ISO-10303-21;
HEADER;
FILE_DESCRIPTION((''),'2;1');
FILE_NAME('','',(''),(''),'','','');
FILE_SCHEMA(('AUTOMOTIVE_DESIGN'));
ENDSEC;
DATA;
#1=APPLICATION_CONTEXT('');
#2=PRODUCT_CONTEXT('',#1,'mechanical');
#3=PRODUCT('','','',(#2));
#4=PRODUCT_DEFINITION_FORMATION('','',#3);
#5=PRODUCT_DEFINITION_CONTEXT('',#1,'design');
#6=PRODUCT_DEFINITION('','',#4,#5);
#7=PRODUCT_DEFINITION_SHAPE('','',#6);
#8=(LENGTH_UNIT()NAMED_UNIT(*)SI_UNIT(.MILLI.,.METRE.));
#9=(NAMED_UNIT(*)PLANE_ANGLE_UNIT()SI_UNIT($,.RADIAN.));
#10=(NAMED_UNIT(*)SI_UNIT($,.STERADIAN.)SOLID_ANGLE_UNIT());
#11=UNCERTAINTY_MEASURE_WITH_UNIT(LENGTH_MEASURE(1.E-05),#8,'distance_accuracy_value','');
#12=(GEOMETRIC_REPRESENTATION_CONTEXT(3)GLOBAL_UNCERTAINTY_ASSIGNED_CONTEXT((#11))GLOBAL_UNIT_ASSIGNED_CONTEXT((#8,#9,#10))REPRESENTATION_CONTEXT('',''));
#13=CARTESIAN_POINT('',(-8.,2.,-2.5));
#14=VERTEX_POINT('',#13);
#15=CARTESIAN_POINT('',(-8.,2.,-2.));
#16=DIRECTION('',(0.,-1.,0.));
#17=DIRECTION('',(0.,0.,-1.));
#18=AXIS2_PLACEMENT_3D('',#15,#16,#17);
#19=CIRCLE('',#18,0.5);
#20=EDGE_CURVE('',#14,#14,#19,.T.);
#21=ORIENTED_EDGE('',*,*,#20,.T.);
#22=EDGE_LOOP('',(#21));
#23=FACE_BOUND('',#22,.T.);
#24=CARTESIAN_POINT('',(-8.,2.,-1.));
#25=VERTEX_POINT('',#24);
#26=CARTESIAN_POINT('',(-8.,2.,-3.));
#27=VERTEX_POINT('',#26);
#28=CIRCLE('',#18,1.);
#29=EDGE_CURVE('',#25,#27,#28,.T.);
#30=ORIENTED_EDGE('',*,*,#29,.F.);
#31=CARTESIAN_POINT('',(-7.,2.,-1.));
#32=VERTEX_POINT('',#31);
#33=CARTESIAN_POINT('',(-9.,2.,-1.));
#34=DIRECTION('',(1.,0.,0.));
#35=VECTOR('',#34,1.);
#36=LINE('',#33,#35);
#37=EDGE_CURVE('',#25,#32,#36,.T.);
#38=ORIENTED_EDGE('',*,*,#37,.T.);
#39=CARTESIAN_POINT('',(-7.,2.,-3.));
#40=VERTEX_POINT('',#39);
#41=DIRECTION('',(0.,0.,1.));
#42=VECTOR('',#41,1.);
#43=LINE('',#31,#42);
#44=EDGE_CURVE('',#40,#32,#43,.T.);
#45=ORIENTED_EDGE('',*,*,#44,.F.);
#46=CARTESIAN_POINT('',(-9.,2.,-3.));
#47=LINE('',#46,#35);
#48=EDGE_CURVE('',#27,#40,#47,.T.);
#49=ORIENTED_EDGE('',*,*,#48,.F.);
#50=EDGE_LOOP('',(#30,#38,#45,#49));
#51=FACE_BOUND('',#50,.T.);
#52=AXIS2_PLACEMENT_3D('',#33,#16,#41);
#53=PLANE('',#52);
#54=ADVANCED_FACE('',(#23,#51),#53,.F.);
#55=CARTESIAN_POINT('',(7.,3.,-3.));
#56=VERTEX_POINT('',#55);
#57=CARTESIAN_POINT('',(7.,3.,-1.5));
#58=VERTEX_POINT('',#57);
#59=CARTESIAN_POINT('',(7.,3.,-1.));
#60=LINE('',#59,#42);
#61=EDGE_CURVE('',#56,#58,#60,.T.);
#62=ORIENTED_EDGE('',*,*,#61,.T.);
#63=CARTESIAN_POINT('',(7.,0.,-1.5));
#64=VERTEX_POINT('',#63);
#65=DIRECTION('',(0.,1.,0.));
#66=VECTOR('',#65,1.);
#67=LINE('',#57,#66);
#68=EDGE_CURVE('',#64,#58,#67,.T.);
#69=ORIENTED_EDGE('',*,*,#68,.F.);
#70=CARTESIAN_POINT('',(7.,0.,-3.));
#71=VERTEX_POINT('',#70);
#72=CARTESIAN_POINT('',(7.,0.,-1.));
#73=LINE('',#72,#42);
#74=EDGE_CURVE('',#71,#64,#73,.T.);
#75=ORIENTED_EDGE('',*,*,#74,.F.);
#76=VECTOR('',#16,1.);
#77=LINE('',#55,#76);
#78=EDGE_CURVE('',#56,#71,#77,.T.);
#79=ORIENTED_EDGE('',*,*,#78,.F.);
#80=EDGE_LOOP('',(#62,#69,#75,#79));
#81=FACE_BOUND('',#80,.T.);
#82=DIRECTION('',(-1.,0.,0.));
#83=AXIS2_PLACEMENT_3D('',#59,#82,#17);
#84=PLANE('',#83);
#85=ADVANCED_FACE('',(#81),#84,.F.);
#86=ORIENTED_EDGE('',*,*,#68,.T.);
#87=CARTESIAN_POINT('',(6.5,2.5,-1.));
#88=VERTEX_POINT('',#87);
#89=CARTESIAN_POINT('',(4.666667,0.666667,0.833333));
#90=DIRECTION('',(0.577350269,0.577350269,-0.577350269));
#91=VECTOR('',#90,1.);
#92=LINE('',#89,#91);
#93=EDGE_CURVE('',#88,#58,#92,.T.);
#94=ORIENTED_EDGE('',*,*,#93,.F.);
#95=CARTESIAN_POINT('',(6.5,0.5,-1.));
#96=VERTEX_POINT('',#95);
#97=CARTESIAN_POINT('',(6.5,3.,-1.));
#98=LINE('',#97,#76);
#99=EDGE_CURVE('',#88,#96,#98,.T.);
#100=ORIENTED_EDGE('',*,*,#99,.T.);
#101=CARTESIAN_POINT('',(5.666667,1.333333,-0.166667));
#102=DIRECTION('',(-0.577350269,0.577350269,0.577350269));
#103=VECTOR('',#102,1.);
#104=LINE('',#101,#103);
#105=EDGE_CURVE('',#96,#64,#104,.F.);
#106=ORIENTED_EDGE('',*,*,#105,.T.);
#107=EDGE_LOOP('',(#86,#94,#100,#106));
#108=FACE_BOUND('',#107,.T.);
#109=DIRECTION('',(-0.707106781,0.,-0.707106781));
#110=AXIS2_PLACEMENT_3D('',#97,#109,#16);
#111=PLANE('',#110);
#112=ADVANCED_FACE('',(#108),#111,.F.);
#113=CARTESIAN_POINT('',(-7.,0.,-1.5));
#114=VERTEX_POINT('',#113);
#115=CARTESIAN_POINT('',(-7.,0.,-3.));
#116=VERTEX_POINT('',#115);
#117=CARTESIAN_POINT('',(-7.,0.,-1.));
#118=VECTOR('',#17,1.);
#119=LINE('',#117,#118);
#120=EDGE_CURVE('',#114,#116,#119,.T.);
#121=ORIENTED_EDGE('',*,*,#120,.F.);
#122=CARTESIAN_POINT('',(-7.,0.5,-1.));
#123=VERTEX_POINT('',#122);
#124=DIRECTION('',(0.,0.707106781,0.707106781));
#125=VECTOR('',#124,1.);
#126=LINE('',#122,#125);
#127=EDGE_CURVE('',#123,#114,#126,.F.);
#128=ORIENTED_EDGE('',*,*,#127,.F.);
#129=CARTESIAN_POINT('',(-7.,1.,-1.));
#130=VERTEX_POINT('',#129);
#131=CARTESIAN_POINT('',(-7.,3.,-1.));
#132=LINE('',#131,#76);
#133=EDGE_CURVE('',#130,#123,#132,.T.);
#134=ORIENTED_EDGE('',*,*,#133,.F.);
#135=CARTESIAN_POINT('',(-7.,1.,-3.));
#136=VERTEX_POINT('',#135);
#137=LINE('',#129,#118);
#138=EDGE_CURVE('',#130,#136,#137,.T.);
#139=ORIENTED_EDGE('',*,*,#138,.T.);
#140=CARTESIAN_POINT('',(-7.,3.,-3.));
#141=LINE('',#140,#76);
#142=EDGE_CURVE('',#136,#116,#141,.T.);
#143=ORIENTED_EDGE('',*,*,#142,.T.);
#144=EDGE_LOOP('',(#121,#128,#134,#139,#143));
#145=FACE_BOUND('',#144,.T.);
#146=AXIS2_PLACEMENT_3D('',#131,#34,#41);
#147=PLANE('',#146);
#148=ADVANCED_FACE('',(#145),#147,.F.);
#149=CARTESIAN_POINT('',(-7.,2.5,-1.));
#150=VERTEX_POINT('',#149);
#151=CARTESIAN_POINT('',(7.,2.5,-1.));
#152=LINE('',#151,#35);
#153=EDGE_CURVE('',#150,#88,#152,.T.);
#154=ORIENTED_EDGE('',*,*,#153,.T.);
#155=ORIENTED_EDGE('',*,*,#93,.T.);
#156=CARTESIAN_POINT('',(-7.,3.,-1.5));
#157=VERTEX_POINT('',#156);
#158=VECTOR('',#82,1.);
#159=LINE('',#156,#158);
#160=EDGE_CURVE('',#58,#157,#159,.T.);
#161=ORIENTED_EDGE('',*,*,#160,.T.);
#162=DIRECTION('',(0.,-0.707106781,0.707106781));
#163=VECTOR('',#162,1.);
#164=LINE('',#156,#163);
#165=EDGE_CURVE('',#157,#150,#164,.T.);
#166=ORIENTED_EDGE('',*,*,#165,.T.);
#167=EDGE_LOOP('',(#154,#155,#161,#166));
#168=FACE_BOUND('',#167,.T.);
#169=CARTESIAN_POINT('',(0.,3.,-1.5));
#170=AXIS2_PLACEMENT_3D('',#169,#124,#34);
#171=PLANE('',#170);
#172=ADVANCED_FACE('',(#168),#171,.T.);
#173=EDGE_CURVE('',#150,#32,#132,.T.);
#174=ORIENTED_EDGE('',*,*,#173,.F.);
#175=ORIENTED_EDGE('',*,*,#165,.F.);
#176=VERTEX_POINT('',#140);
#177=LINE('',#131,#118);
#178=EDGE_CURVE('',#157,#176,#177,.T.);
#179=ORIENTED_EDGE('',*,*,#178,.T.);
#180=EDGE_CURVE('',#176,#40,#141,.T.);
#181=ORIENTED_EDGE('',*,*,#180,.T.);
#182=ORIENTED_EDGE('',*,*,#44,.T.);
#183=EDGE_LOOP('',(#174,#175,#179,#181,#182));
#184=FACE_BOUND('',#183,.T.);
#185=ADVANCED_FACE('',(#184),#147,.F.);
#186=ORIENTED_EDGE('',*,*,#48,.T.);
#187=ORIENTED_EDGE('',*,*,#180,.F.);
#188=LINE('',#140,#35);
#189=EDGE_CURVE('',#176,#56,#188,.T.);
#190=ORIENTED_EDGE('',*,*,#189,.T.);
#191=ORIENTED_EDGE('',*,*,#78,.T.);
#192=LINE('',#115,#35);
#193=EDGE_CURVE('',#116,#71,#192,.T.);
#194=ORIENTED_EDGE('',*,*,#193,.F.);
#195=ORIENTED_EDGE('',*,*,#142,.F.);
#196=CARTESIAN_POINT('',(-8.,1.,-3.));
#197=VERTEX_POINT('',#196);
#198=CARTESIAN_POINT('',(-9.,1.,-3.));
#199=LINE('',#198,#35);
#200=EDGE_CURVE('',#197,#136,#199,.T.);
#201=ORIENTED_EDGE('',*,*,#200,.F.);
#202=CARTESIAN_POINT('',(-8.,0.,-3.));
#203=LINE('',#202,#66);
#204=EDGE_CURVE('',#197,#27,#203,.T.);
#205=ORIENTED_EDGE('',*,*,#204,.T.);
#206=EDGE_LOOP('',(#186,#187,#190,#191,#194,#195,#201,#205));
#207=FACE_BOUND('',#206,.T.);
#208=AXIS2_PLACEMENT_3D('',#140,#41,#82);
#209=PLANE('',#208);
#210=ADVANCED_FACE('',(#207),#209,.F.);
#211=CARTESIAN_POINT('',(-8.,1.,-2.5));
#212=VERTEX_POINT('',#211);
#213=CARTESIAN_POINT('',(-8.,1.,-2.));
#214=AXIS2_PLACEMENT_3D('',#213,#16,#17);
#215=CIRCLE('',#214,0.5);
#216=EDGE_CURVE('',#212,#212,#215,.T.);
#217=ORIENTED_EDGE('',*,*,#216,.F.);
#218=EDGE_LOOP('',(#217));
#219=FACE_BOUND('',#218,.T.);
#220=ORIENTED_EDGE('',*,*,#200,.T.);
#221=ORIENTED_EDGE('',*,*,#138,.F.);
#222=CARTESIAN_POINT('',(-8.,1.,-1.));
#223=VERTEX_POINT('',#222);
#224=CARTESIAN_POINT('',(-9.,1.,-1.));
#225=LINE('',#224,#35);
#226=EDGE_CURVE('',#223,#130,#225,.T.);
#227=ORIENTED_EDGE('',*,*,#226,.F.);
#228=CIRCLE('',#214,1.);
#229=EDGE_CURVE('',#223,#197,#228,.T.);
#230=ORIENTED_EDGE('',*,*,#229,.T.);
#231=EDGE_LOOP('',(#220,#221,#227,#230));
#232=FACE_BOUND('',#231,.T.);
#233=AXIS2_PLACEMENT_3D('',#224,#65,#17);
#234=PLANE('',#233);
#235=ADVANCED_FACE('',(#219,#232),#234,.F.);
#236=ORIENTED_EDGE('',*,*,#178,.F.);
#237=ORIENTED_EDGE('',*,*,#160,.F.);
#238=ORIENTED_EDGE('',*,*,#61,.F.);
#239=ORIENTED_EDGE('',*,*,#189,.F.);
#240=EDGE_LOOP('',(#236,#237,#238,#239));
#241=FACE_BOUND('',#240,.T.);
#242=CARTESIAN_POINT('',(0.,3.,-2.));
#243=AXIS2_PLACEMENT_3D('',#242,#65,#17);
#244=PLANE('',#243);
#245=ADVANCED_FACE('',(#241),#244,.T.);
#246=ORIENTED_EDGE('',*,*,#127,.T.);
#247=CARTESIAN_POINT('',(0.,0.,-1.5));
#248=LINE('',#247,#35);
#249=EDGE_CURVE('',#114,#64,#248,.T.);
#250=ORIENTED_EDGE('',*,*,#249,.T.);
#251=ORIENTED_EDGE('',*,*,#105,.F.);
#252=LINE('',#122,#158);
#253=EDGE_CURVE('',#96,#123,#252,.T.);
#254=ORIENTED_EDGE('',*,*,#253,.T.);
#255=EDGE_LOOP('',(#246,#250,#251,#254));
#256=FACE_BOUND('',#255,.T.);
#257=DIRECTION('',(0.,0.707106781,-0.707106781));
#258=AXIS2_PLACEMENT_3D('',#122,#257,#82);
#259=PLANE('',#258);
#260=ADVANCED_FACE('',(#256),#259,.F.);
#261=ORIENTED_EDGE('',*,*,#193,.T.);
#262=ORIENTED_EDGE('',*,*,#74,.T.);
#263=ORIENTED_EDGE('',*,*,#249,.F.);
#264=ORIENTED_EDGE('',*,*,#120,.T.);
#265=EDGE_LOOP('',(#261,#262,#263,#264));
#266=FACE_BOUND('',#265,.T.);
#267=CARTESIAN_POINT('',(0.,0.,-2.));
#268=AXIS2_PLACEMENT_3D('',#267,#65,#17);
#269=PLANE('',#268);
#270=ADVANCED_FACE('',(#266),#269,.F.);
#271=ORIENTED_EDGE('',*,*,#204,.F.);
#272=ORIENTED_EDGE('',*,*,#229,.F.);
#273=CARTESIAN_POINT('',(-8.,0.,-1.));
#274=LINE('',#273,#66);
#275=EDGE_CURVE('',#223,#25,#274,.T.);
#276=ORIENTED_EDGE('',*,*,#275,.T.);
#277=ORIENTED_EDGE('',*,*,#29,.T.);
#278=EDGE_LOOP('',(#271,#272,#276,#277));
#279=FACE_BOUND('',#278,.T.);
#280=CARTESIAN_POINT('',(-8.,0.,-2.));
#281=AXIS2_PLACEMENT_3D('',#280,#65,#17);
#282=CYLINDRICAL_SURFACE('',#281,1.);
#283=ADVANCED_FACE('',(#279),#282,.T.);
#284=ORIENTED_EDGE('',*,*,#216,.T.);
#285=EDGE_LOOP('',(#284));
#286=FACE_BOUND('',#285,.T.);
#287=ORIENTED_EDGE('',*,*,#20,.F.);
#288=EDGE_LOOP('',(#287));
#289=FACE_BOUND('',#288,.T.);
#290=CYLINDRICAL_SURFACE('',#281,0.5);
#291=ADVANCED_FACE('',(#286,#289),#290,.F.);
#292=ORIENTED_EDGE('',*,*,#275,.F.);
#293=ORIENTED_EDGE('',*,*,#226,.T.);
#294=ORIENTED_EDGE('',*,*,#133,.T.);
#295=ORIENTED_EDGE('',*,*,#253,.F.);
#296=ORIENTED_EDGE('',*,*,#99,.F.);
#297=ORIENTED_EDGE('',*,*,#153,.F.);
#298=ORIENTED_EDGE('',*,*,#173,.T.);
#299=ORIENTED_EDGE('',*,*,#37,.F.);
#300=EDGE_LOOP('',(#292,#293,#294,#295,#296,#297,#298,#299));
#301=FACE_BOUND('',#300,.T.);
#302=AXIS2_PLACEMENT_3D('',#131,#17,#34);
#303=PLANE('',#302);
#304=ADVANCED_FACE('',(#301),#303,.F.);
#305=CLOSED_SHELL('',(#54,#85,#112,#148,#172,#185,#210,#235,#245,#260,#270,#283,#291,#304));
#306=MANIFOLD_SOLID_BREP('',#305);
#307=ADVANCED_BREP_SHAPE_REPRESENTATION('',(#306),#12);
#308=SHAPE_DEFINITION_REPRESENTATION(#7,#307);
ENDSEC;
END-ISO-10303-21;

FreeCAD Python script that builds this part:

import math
import FreeCAD as App
import Part
import Sketcher
from FreeCAD import Vector
Q = App.Units.Quantity


def edges_at(feature, points):
    """Names of the edges that pass closest to the given points."""
    edges = feature.Shape.Edges
    near = lambda p: min(range(len(edges)), key=lambda i: edges[i].distToShape(Part.Vertex(*p))[0])
    return sorted({f"Edge{near(p) + 1}" for p in points})

doc = App.newDocument("Part")
body = doc.addObject("PartDesign::Body", "Body")

sketch1 = body.newObject("Sketcher::SketchObject", "Sketch")
sketch1.AttachmentSupport = (doc.getObject("XZ_Plane"), [""])
sketch1.MapMode = "FlatFace"
sketch1.addGeometry([
    Part.LineSegment(Vector(-7, -1, 0), Vector(-7, 1, 0)),
    Part.LineSegment(Vector(-7, 1, 0), Vector(7, 1, 0)),
    Part.LineSegment(Vector(7, 1, 0), Vector(7, -1, 0)),
    Part.LineSegment(Vector(7, -1, 0), Vector(-7, -1, 0)),
], False)
sketch1.addConstraint([
    Sketcher.Constraint("Coincident", 0, 2, 1, 1),
    Sketcher.Constraint("Coincident", 1, 2, 2, 1),
    Sketcher.Constraint("Coincident", 2, 2, 3, 1),
    Sketcher.Constraint("Coincident", 3, 2, 0, 1),
    Sketcher.Constraint("Vertical", 0),
    Sketcher.Constraint("Horizontal", 1),
    Sketcher.Constraint("Vertical", 2),
    Sketcher.Constraint("Horizontal", 3),
    Sketcher.Constraint("Symmetric", 0, 2, 2, 2, -1, 1),
    Sketcher.Constraint("DistanceX", 1, 1, 1, 2, Q("14 mm")),
    Sketcher.Constraint("DistanceY", 0, 1, 0, 2, Q("2 mm")),
])
pad1 = body.newObject("PartDesign::Pad", "Pad")
pad1.Profile = sketch1
pad1.Length = 3
pad1.Reversed = True
doc.recompute()

chamfer = body.newObject("PartDesign::Chamfer", "Chamfer")
chamfer.Base = (pad1, edges_at(pad1, [(0, 0, -1), (7, 1.5, -1), (0, 3, -1)]))
chamfer.Size = 0.5

sketch2 = body.newObject("Sketcher::SketchObject", "Sketch001")
sketch2.AttachmentSupport = (doc.getObject("YZ_Plane"), [""])
sketch2.MapMode = "FlatFace"
sketch2.AttachmentOffset = App.Placement(Vector(0, 0, -7), App.Rotation())
sketch2.addGeometry([
    Part.LineSegment(Vector(2, -1, 0), Vector(1, -1, 0)),
    Part.LineSegment(Vector(1, -1, 0), Vector(1, 1, 0)),
    Part.LineSegment(Vector(1, 1, 0), Vector(2, 1, 0)),
    Part.LineSegment(Vector(2, 1, 0), Vector(2, -1, 0)),
], False)
sketch2.addConstraint([
    Sketcher.Constraint("Coincident", 0, 2, 1, 1),
    Sketcher.Constraint("Coincident", 1, 2, 2, 1),
    Sketcher.Constraint("Coincident", 2, 2, 3, 1),
    Sketcher.Constraint("Coincident", 3, 2, 0, 1),
    Sketcher.Constraint("Horizontal", 0),
    Sketcher.Constraint("Vertical", 1),
    Sketcher.Constraint("Horizontal", 2),
    Sketcher.Constraint("Vertical", 3),
    Sketcher.Constraint("DistanceX", 0, 2, 0, 1, Q("1 mm")),
    Sketcher.Constraint("DistanceY", 1, 1, 1, 2, Q("2 mm")),
    Sketcher.Constraint("DistanceX", -1, 1, 0, 2, Q("1 mm")),
    Sketcher.Constraint("DistanceY", 0, 2, -1, 1, Q("1 mm")),
])
pad2 = body.newObject("PartDesign::Pad", "Pad001")
pad2.Profile = sketch2
pad2.Length = 2
pad2.Reversed = True

sketch3 = body.newObject("Sketcher::SketchObject", "Sketch002")
sketch3.AttachmentSupport = (doc.getObject("XZ_Plane"), [""])
sketch3.MapMode = "FlatFace"
sketch3.AttachmentOffset = App.Placement(Vector(0, 0, -2), App.Rotation())
sketch3.addGeometry([
    Part.Circle(Vector(-8, 0, 0), Vector(0, 0, 1), 0.5),
    Part.ArcOfCircle(Part.Circle(Vector(-8, 0, 0), Vector(0, 0, 1), 1), math.radians(-180), math.radians(-90)),
    Part.LineSegment(Vector(-8, -1, 0), Vector(-9, -1, 0)),
    Part.LineSegment(Vector(-9, -1, 0), Vector(-9, 0, 0)),
    Part.LineSegment(Vector(-9, 1, 0), Vector(-8, 1, 0)),
    Part.ArcOfCircle(Part.Circle(Vector(-8, 0, 0), Vector(0, 0, 1), 1), math.radians(90), math.radians(180)),
    Part.LineSegment(Vector(-9, 0, 0), Vector(-9, 1, 0)),
], False)
sketch3.addConstraint([
    Sketcher.Constraint("Tangent", 1, 2, 2, 1),
    Sketcher.Constraint("Coincident", 2, 2, 3, 1),
    Sketcher.Constraint("Tangent", 3, 2, 1, 1),
    Sketcher.Constraint("Tangent", 4, 2, 5, 1),
    Sketcher.Constraint("Tangent", 5, 2, 6, 1),
    Sketcher.Constraint("Coincident", 6, 2, 4, 1),
    Sketcher.Constraint("Horizontal", 2),
    Sketcher.Constraint("Vertical", 3),
    Sketcher.Constraint("Horizontal", 4),
    Sketcher.Constraint("Vertical", 6),
    Sketcher.Constraint("Coincident", 1, 3, 0, 3),
    Sketcher.Constraint("Coincident", 5, 3, 0, 3),
    Sketcher.Constraint("Equal", 1, 5),
    Sketcher.Constraint("PointOnObject", 0, 3, -1),
    Sketcher.Constraint("Diameter", 0, Q("1 mm")),
    Sketcher.Constraint("Radius", 1, Q("1 mm")),
    Sketcher.Constraint("DistanceX", 0, 3, -1, 1, Q("8 mm")),
])
pocket1 = body.newObject("PartDesign::Pocket", "Pocket")
pocket1.Profile = sketch3
pocket1.Length = 2
pocket1.Reversed = True
body2 = doc.addObject("PartDesign::Body", "Body001")
doc.recompute()

mirroring = doc.addObject("Part::Mirroring", "Mirroring")
mirroring.Source = body
mirroring.Base = Vector(-7, 3, -1)
mirroring.Normal = Vector(0, 0, 1)
body2.BaseFeature = mirroring
doc.recompute()
body.Visibility = False
mirroring.Visibility = False

doc.recompute()
